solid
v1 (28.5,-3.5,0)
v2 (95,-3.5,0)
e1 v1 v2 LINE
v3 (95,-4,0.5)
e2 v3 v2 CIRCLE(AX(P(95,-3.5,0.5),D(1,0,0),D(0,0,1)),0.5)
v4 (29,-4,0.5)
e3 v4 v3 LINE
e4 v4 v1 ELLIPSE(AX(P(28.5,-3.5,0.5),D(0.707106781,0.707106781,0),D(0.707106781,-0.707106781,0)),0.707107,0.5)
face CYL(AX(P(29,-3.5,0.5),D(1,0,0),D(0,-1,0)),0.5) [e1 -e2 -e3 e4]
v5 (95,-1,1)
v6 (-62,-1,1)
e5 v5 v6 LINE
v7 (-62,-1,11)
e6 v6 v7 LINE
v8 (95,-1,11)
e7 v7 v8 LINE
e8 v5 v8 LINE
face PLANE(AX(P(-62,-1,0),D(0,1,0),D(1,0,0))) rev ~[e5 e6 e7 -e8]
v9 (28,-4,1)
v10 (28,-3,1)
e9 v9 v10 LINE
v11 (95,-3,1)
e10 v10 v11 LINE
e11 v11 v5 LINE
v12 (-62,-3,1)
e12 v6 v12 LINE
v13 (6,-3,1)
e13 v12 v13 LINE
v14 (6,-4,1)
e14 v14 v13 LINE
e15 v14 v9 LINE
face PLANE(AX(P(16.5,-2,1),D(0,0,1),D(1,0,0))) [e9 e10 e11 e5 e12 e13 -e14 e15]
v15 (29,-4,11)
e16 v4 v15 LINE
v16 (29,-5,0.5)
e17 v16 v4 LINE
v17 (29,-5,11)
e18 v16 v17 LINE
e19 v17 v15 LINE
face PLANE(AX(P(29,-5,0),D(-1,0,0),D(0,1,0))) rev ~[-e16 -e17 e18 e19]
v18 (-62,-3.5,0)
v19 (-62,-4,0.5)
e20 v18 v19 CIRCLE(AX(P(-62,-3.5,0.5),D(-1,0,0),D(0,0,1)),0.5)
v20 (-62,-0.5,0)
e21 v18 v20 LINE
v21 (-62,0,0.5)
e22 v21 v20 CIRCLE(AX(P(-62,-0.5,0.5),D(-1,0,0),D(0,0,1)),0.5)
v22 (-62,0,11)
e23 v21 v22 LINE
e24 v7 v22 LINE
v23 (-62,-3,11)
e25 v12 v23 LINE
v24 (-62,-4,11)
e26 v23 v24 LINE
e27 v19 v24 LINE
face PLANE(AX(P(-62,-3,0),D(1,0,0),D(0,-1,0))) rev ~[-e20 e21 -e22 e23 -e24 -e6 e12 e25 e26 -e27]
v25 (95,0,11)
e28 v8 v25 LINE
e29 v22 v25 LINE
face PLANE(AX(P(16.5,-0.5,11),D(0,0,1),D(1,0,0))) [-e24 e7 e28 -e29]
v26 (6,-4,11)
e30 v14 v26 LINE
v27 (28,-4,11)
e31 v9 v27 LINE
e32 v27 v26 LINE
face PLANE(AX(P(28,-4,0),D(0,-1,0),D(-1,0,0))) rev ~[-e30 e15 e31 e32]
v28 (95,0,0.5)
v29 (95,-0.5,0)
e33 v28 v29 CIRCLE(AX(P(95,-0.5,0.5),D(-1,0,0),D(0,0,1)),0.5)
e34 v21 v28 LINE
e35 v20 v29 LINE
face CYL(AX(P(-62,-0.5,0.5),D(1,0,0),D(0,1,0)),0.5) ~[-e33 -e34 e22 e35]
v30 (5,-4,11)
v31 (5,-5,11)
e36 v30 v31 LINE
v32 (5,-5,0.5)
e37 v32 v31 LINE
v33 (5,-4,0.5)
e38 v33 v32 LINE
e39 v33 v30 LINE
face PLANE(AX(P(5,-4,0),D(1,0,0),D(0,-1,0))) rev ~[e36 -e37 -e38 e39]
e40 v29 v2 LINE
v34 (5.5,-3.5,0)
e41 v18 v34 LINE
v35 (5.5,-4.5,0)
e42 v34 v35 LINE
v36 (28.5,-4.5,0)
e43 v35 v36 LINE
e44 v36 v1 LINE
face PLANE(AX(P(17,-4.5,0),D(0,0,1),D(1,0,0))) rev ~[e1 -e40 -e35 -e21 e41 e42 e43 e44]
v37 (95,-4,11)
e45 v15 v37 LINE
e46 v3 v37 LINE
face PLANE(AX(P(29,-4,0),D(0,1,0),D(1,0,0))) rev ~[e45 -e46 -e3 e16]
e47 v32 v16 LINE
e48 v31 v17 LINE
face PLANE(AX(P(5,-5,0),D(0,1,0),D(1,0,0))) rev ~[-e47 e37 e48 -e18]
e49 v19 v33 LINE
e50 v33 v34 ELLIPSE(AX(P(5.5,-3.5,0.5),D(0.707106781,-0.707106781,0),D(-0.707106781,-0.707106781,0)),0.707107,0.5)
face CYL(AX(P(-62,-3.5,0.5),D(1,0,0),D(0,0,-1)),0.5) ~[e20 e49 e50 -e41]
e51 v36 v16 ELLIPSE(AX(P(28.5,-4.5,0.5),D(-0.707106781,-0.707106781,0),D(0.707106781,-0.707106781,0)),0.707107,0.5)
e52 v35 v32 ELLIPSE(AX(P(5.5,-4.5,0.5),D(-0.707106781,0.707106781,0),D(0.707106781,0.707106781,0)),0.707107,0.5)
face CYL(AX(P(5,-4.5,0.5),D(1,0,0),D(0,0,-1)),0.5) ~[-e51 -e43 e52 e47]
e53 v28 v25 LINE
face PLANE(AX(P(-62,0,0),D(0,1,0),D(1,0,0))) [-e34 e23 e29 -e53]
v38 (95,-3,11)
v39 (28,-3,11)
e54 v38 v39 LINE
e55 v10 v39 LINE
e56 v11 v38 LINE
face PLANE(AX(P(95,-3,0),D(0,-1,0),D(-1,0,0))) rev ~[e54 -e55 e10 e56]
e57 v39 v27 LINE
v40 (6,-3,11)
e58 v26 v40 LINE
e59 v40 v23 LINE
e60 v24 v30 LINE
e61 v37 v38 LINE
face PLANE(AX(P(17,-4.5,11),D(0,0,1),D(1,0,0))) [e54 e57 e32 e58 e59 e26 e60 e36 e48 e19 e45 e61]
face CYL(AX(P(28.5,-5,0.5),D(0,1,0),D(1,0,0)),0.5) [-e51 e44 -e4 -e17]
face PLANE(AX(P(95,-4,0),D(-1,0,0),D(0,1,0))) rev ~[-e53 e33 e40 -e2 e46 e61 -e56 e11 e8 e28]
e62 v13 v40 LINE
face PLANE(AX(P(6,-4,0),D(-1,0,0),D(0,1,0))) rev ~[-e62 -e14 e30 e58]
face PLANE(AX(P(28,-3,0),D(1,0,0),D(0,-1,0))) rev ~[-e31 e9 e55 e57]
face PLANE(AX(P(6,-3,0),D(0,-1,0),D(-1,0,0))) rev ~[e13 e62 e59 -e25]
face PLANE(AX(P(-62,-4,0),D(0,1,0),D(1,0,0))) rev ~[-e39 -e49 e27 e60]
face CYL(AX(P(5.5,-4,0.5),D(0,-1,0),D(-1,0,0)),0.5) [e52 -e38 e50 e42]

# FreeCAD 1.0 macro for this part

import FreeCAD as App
import Part
import Sketcher

V = App.Vector


def edges_at(feature, points):
    """Names of the edges that pass closest to the given points."""
    edges = feature.Shape.Edges
    near = lambda p: min(range(len(edges)), key=lambda i: edges[i].distToShape(Part.Vertex(*p))[0])
    return sorted({f"Edge{near(p) + 1}" for p in points})

doc = App.newDocument("Part")
params = doc.addObject("Spreadsheet::Sheet", "Params")
for row, (alias, value) in enumerate([
    ("sketch1_width", "157 mm"),
    ("sketch1_width2", "68 mm"),
    ("sketch1_width3", "22 mm"),
    ("sketch1_height", "2 mm"),
    ("sketch1_height2", "1 mm"),
    ("pad1_length", "1 mm"),
    ("sketch2_width", "24 mm"),
    ("sketch2_width2", "66 mm"),
    ("sketch2_width3", "67 mm"),
    ("sketch2_width4", "22 mm"),
    ("sketch2_height", "1 mm"),
    ("pad2_length", "11 mm"),
    ("fillet_radius", "0.5 mm"),
], start=1):
    params.set(f"A{row}", alias)
    params.set(f"B{row}", "=" + value)
    params.setAlias(f"B{row}", alias)

body = doc.addObject("PartDesign::Body", "Body")

sketch1 = body.newObject("Sketcher::SketchObject", "Sketch")
sketch1.AttachmentSupport = (doc.getObject("XY_Plane"), [""])
sketch1.MapMode = "FlatFace"
sketch1.addGeometry([
    Part.LineSegment(V(95, -1, 0), V(-62, -1, 0)),
    Part.LineSegment(V(-62, -1, 0), V(-62, -3, 0)),
    Part.LineSegment(V(-62, -3, 0), V(6, -3, 0)),
    Part.LineSegment(V(6, -3, 0), V(6, -4, 0)),
    Part.LineSegment(V(6, -4, 0), V(28, -4, 0)),
    Part.LineSegment(V(28, -4, 0), V(28, -3, 0)),
    Part.LineSegment(V(28, -3, 0), V(95, -3, 0)),
    Part.LineSegment(V(95, -3, 0), V(95, -1, 0)),
], False)
sketch1.addConstraint([
    Sketcher.Constraint("Coincident", 0, 2, 1, 1),
    Sketcher.Constraint("Coincident", 1, 2, 2, 1),
    Sketcher.Constraint("Coincident", 2, 2, 3, 1),
    Sketcher.Constraint("Coincident", 3, 2, 4, 1),
    Sketcher.Constraint("Coincident", 4, 2, 5, 1),
    Sketcher.Constraint("Coincident", 5, 2, 6, 1),
    Sketcher.Constraint("Coincident", 6, 2, 7, 1),
    Sketcher.Constraint("Coincident", 7, 2, 0, 1),
    Sketcher.Constraint("Horizontal", 0),
    Sketcher.Constraint("Vertical", 1),
    Sketcher.Constraint("Horizontal", 2),
    Sketcher.Constraint("Vertical", 3),
    Sketcher.Constraint("Horizontal", 4),
    Sketcher.Constraint("Vertical", 5),
    Sketcher.Constraint("Horizontal", 6),
    Sketcher.Constraint("Vertical", 7),
    Sketcher.Constraint("Horizontal", 2, 2, 5, 2),
    Sketcher.Constraint("DistanceX", 0, 2, 0, 1, 157.0),
    Sketcher.Constraint("DistanceX", 2, 1, 2, 2, 68.0),
    Sketcher.Constraint("DistanceX", 4, 1, 4, 2, 22.0),
    Sketcher.Constraint("DistanceY", 1, 2, 1, 1, 2.0),
    Sketcher.Constraint("DistanceY", 3, 2, 3, 1, 1.0),
    Sketcher.Constraint("DistanceX", 0, 2, -1, 1, 62.0),
    Sketcher.Constraint("DistanceY", 0, 2, -1, 1, 1.0),
])
sketch1.setExpression("Constraints[17]", "Params.sketch1_width")
sketch1.setExpression("Constraints[18]", "Params.sketch1_width2")
sketch1.setExpression("Constraints[19]", "Params.sketch1_width3")
sketch1.setExpression("Constraints[20]", "Params.sketch1_height")
sketch1.setExpression("Constraints[21]", "Params.sketch1_height2")
pad1 = body.newObject("PartDesign::Pad", "Pad")
pad1.Profile = sketch1
pad1.setExpression("Length", "Params.pad1_length")

sketch2 = body.newObject("Sketcher::SketchObject", "Sketch001")
sketch2.AttachmentSupport = (doc.getObject("XY_Plane"), [""])
sketch2.MapMode = "FlatFace"
sketch2.addGeometry([
    Part.LineSegment(V(5, -4, 0), V(5, -5, 0)),
    Part.LineSegment(V(5, -5, 0), V(29, -5, 0)),
    Part.LineSegment(V(29, -5, 0), V(29, -4, 0)),
    Part.LineSegment(V(29, -4, 0), V(95, -4, 0)),
    Part.LineSegment(V(95, -4, 0), V(95, -3, 0)),
    Part.LineSegment(V(95, -3, 0), V(28, -3, 0)),
    Part.LineSegment(V(28, -3, 0), V(28, -4, 0)),
    Part.LineSegment(V(28, -4, 0), V(6, -4, 0)),
    Part.LineSegment(V(6, -4, 0), V(6, -3, 0)),
    Part.LineSegment(V(6, -3, 0), V(-62, -3, 0)),
    Part.LineSegment(V(-62, -3, 0), V(-62, -4, 0)),
    Part.LineSegment(V(-62, -4, 0), V(5, -4, 0)),
    Part.LineSegment(V(-62, 0, 0), V(-62, -1, 0)),
    Part.LineSegment(V(-62, -1, 0), V(95, -1, 0)),
    Part.LineSegment(V(95, -1, 0), V(95, 0, 0)),
    Part.LineSegment(V(95, 0, 0), V(-62, 0, 0)),
], False)
sketch2.addConstraint([
    Sketcher.Constraint("Coincident", 0, 2, 1, 1),
    Sketcher.Constraint("Coincident", 1, 2, 2, 1),
    Sketcher.Constraint("Coincident", 2, 2, 3, 1),
    Sketcher.Constraint("Coincident", 3, 2, 4, 1),
    Sketcher.Constraint("Coincident", 4, 2, 5, 1),
    Sketcher.Constraint("Coincident", 5, 2, 6, 1),
    Sketcher.Constraint("Coincident", 6, 2, 7, 1),
    Sketcher.Constraint("Coincident", 7, 2, 8, 1),
    Sketcher.Constraint("Coincident", 8, 2, 9, 1),
    Sketcher.Constraint("Coincident", 9, 2, 10, 1),
    Sketcher.Constraint("Coincident", 10, 2, 11, 1),
    Sketcher.Constraint("Coincident", 11, 2, 0, 1),
    Sketcher.Constraint("Coincident", 12, 2, 13, 1),
    Sketcher.Constraint("Coincident", 13, 2, 14, 1),
    Sketcher.Constraint("Coincident", 14, 2, 15, 1),
    Sketcher.Constraint("Coincident", 15, 2, 12, 1),
    Sketcher.Constraint("Vertical", 0),
    Sketcher.Constraint("Horizontal", 1),
    Sketcher.Constraint("Vertical", 2),
    Sketcher.Constraint("Horizontal", 3),
    Sketcher.Constraint("Vertical", 4),
    Sketcher.Constraint("Horizontal", 5),
    Sketcher.Constraint("Vertical", 6),
    Sketcher.Constraint("Horizontal", 7),
    Sketcher.Constraint("Vertical", 8),
    Sketcher.Constraint("Horizontal", 9),
    Sketcher.Constraint("Vertical", 10),
    Sketcher.Constraint("Horizontal", 11),
    Sketcher.Constraint("Vertical", 12),
    Sketcher.Constraint("Horizontal", 13),
    Sketcher.Constraint("Vertical", 14),
    Sketcher.Constraint("Horizontal", 15),
    Sketcher.Constraint("PointOnObject", 14, 2, -1),
    Sketcher.Constraint("Horizontal", 3, 2, 6, 2),
    Sketcher.Constraint("Horizontal", 5, 2, 8, 2),
    Sketcher.Constraint("Horizontal", 7, 2, 10, 2),
    Sketcher.Constraint("Vertical", 10, 2, 12, 2),
    Sketcher.Constraint("Vertical", 4, 2, 13, 2),
    Sketcher.Constraint("Equal", 5, 11),
    Sketcher.Constraint("Equal", 2, 4),
    Sketcher.Constraint("Equal", 10, 12),
    Sketcher.Constraint("DistanceX", 1, 1, 1, 2, 24.0),
    Sketcher.Constraint("DistanceX", 3, 1, 3, 2, 66.0),
    Sketcher.Constraint("DistanceX", 5, 2, 5, 1, 67.0),
    Sketcher.Constraint("DistanceX", 7, 2, 7, 1, 22.0),
    Sketcher.Constraint("DistanceY", 0, 2, 0, 1, 1.0),
    Sketcher.Constraint("DistanceX", -1, 1, 0, 2, 5.0),
    Sketcher.Constraint("DistanceY", 0, 2, -1, 1, 5.0),
])
sketch2.setExpression("Constraints[41]", "Params.sketch2_width")
sketch2.setExpression("Constraints[42]", "Params.sketch2_width2")
sketch2.setExpression("Constraints[43]", "Params.sketch2_width3")
sketch2.setExpression("Constraints[44]", "Params.sketch2_width4")
sketch2.setExpression("Constraints[45]", "Params.sketch2_height")
pad2 = body.newObject("PartDesign::Pad", "Pad001")
pad2.Profile = sketch2
pad2.setExpression("Length", "Params.pad2_length")
doc.recompute()

fillet = body.newObject("PartDesign::Fillet", "Fillet")
fillet.Base = (pad2, edges_at(pad2, [
    (17, -5, 0),
    (5, -4.5, 0),
    (-28.5, -4, 0),
    (62, -4, 0),
    (29, -4.5, 0),
    (16.5, 0, 0),
]))
fillet.setExpression("Radius", "Params.fillet_radius")

doc.recompute()
